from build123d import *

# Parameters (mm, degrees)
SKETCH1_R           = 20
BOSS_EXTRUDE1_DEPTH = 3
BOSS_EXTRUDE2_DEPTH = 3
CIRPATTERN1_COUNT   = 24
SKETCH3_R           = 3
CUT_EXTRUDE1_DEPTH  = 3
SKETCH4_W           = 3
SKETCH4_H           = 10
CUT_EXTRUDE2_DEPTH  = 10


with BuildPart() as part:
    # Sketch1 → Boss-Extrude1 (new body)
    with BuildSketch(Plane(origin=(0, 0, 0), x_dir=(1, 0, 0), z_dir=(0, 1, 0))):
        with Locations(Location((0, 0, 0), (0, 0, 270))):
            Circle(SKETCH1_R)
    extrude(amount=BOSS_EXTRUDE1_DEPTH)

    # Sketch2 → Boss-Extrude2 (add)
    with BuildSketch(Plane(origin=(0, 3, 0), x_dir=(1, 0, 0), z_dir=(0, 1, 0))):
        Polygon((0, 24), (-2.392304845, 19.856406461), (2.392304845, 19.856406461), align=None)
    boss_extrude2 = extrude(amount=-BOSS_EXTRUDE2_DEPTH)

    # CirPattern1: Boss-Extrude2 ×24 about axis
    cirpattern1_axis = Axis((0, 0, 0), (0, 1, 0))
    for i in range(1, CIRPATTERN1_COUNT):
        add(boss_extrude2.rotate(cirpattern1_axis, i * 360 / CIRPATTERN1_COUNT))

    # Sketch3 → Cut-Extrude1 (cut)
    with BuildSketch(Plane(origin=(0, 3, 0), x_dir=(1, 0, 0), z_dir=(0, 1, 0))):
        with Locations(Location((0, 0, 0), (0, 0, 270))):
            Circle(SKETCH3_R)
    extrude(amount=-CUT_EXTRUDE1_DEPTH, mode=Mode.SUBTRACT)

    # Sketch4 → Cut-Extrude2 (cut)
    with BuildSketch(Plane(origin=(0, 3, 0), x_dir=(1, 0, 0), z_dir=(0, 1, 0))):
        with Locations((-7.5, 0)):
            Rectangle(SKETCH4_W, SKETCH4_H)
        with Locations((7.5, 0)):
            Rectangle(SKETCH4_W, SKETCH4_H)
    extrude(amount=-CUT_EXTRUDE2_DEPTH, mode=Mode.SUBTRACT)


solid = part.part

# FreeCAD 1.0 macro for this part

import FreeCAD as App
import Part
import Sketcher

V = App.Vector
Q = App.Units.Quantity

doc = App.newDocument("Part")
params = doc.addObject("Spreadsheet::Sheet", "Params")
for row, (alias, value) in enumerate([
    ("sketch1_diameter", "40 mm"),
    ("pad1_length", "3 mm"),
    ("pad2_length", "3 mm"),
    ("sketch3_diameter", "6 mm"),
    ("pocket1_length", "3 mm"),
    ("sketch4_width", "3 mm"),
    ("sketch4_height", "10 mm"),
    ("pocket2_length", "10 mm"),
], start=1):
    params.set(f"A{row}", alias)
    params.set(f"B{row}", "=" + value)
    params.setAlias(f"B{row}", alias)

body = doc.addObject("PartDesign::Body", "Body")

sketch1 = body.newObject("Sketcher::SketchObject", "Sketch")
sketch1.AttachmentSupport = (doc.getObject("XZ_Plane"), [""])
sketch1.MapMode = "FlatFace"
sketch1.addGeometry(Part.Circle(V(0, 0, 0), V(0, 0, 1), 20), False)
sketch1.addConstraint([
    Sketcher.Constraint("Coincident", 0, 3, -1, 1),
    Sketcher.Constraint("Diameter", 0, Q("40 mm")),
])
sketch1.setExpression("Constraints[1]", "Params.sketch1_diameter")
pad1 = body.newObject("PartDesign::Pad", "Pad")
pad1.Profile = sketch1
pad1.setExpression("Length", "Params.pad1_length")
pad1.Reversed = True

sketch2 = body.newObject("Sketcher::SketchObject", "Sketch001")
sketch2.AttachmentSupport = (doc.getObject("XZ_Plane"), [""])
sketch2.MapMode = "FlatFace"
sketch2.AttachmentOffset = App.Placement(V(0, 0, -3), App.Rotation())
sketch2.addGeometry([
    Part.LineSegment(V(0, -24, 0), V(-2.4, -19.9, 0)),
    Part.LineSegment(V(-2.4, -19.9, 0), V(2.4, -19.9, 0)),
    Part.LineSegment(V(2.4, -19.9, 0), V(0, -24, 0)),
], False)
sketch2.addConstraint([
    Sketcher.Constraint("Coincident", 0, 2, 1, 1),
    Sketcher.Constraint("Coincident", 1, 2, 2, 1),
    Sketcher.Constraint("Coincident", 2, 2, 0, 1),
    Sketcher.Constraint("Horizontal", 1),
    Sketcher.Constraint("PointOnObject", 2, 2, -2),
    Sketcher.Constraint("Equal", 0, 2),
    Sketcher.Constraint("Angle", 0, Q("120 deg")),
    Sketcher.Constraint("DistanceY", 2, 2, -1, 1, Q("24 mm")),
    Sketcher.Constraint("DistanceX", 1, 1, 1, 2, Q("4.78461 mm")),
])
pad2 = body.newObject("PartDesign::Pad", "Pad001")
pad2.Profile = sketch2
pad2.setExpression("Length", "Params.pad2_length")
doc.recompute()

polarpattern = body.newObject("PartDesign::PolarPattern", "PolarPattern")
polarpattern.Originals = [pad2]
polarpattern.Axis = (doc.getObject("Y_Axis"), [""])
polarpattern.Angle = 360
polarpattern.Occurrences = 24
body.Tip = polarpattern

sketch3 = body.newObject("Sketcher::SketchObject", "Sketch002")
sketch3.AttachmentSupport = (doc.getObject("XZ_Plane"), [""])
sketch3.MapMode = "FlatFace"
sketch3.AttachmentOffset = App.Placement(V(0, 0, -3), App.Rotation())
sketch3.addGeometry(Part.Circle(V(0, 0, 0), V(0, 0, 1), 3), False)
sketch3.addConstraint([
    Sketcher.Constraint("Coincident", 0, 3, -1, 1),
    Sketcher.Constraint("Diameter", 0, Q("6 mm")),
])
sketch3.setExpression("Constraints[1]", "Params.sketch3_diameter")
pocket1 = body.newObject("PartDesign::Pocket", "Pocket")
pocket1.Profile = sketch3
pocket1.setExpression("Length", "Params.pocket1_length")
pocket1.Reversed = True

sketch4 = body.newObject("Sketcher::SketchObject", "Sketch003")
sketch4.AttachmentSupport = (doc.getObject("XZ_Plane"), [""])
sketch4.MapMode = "FlatFace"
sketch4.AttachmentOffset = App.Placement(V(0, 0, -3), App.Rotation())
sketch4.addGeometry([
    Part.LineSegment(V(-9, -5, 0), V(-9, 5, 0)),
    Part.LineSegment(V(-9, 5, 0), V(-6, 5, 0)),
    Part.LineSegment(V(-6, 5, 0), V(-6, -5, 0)),
    Part.LineSegment(V(-6, -5, 0), V(-9, -5, 0)),
    Part.LineSegment(V(6, -5, 0), V(6, 5, 0)),
    Part.LineSegment(V(6, 5, 0), V(9, 5, 0)),
    Part.LineSegment(V(9, 5, 0), V(9, -5, 0)),
    Part.LineSegment(V(9, -5, 0), V(6, -5, 0)),
], False)
sketch4.addConstraint([
    Sketcher.Constraint("Coincident", 0, 2, 1, 1),
    Sketcher.Constraint("Coincident", 1, 2, 2, 1),
    Sketcher.Constraint("Coincident", 2, 2, 3, 1),
    Sketcher.Constraint("Coincident", 3, 2, 0, 1),
    Sketcher.Constraint("Coincident", 4, 2, 5, 1),
    Sketcher.Constraint("Coincident", 5, 2, 6, 1),
    Sketcher.Constraint("Coincident", 6, 2, 7, 1),
    Sketcher.Constraint("Coincident", 7, 2, 4, 1),
    Sketcher.Constraint("Vertical", 0),
    Sketcher.Constraint("Horizontal", 1),
    Sketcher.Constraint("Vertical", 2),
    Sketcher.Constraint("Horizontal", 3),
    Sketcher.Constraint("Vertical", 4),
    Sketcher.Constraint("Horizontal", 5),
    Sketcher.Constraint("Vertical", 6),
    Sketcher.Constraint("Horizontal", 7),
    Sketcher.Constraint("Symmetric", 2, 2, 4, 2, -1, 1),
    Sketcher.Constraint("Symmetric", 0, 2, 6, 2, -1, 1),
    Sketcher.Constraint("Horizontal", 1, 2, 4, 2),
    Sketcher.Constraint("DistanceX", 1, 1, 1, 2, Q("3 mm")),
    Sketcher.Constraint("DistanceY", 0, 1, 0, 2, Q("10 mm")),
    Sketcher.Constraint("DistanceX", 0, 2, -1, 1, Q("9 mm")),
])
sketch4.setExpression("Constraints[19]", "Params.sketch4_width")
sketch4.setExpression("Constraints[20]", "Params.sketch4_height")
pocket2 = body.newObject("PartDesign::Pocket", "Pocket001")
pocket2.Profile = sketch4
pocket2.setExpression("Length", "Params.pocket2_length")
pocket2.Reversed = True

doc.recompute()
